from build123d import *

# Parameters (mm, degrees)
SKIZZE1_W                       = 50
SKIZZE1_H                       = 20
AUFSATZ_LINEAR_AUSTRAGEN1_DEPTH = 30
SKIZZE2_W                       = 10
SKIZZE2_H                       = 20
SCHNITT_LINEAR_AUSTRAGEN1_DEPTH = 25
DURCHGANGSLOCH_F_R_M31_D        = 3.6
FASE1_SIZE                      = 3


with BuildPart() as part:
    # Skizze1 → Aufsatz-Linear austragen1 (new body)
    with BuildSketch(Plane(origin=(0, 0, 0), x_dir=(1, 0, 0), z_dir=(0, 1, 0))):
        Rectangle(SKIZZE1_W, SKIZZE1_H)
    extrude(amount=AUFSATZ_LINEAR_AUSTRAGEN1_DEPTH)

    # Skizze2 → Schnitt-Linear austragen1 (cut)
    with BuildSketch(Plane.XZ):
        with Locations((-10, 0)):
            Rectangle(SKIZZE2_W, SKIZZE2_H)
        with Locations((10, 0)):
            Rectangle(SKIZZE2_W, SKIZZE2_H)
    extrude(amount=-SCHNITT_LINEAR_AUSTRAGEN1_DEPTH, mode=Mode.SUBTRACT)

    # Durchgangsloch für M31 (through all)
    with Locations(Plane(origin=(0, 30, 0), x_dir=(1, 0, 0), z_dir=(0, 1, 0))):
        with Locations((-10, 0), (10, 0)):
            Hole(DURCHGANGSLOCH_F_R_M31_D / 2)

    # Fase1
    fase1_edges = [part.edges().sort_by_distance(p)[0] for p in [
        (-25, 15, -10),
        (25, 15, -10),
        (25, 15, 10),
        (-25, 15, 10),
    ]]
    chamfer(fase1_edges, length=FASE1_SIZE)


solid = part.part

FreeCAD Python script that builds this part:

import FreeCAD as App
import Part
import Sketcher


def edges_at(feature, points):
    """Names of the edges that pass closest to the given points."""
    edges = feature.Shape.Edges
    near = lambda p: min(range(len(edges)), key=lambda i: edges[i].distToShape(Part.Vertex(*p))[0])
    return sorted({f"Edge{near(p) + 1}" for p in points})


def add_polygon(sketch, points):
    """Adds a closed chain of lines whose ends are joined by coincident constraints."""
    first, n = sketch.GeometryCount, len(points)
    for a, b in zip(points, points[1:] + points[:1]):
        sketch.addGeometry(Part.LineSegment(App.Vector(*a, 0), App.Vector(*b, 0)), False)
    for i in range(n):
        sketch.addConstraint(Sketcher.Constraint("Coincident", first + i, 2, first + (i + 1) % n, 1))

doc = App.newDocument("Part")
params = doc.addObject("Spreadsheet::Sheet", "Params")
for row, (alias, value) in enumerate([
    ("sketch1_width", "50 mm"),
    ("sketch1_height", "20 mm"),
    ("pad1_length", "30 mm"),
    ("sketch2_width", "10 mm"),
    ("sketch2_height", "20 mm"),
    ("pocket1_length", "25 mm"),
    ("sketch3_diameter", "3.6 mm"),
    ("hole_diameter", "3.6 mm"),
    ("chamfer_size", "3 mm"),
], start=1):
    params.set(f"A{row}", alias)
    params.set(f"B{row}", "=" + value)
    params.setAlias(f"B{row}", alias)

body = doc.addObject("PartDesign::Body", "Body")

# Sketch on XZ plane
sketch1 = body.newObject("Sketcher::SketchObject", "Sketch")
sketch1.AttachmentSupport = (doc.getObject("XZ_Plane"), [""])
sketch1.MapMode = "FlatFace"
add_polygon(sketch1, [(-25, -10), (-25, 10), (25, 10), (25, -10)])  # lines 0-3
sketch1.addConstraint(Sketcher.Constraint("Vertical", 0))
sketch1.addConstraint(Sketcher.Constraint("Horizontal", 1))
sketch1.addConstraint(Sketcher.Constraint("Vertical", 2))
sketch1.addConstraint(Sketcher.Constraint("Horizontal", 3))
sketch1.addConstraint(Sketcher.Constraint("Symmetric", 0, 2, 2, 2, -1, 1))
sketch1.addConstraint(Sketcher.Constraint("DistanceX", 1, 1, 1, 2, 50.0))
sketch1.addConstraint(Sketcher.Constraint("DistanceY", 0, 1, 0, 2, 20.0))
sketch1.setExpression("Constraints[9]", "Params.sketch1_width")
sketch1.setExpression("Constraints[10]", "Params.sketch1_height")
pad1 = body.newObject("PartDesign::Pad", "Pad")
pad1.Profile = sketch1
pad1.setExpression("Length", "Params.pad1_length")
pad1.Reversed = True

# Sketch on XZ plane
sketch2 = body.newObject("Sketcher::SketchObject", "Sketch001")
sketch2.AttachmentSupport = (doc.getObject("XZ_Plane"), [""])
sketch2.MapMode = "FlatFace"
add_polygon(sketch2, [(-15, 10), (-15, -10), (-5, -10), (-5, 10)])  # lines 0-3
add_polygon(sketch2, [(5, 10), (5, -10), (15, -10), (15, 10)])  # lines 4-7
sketch2.addConstraint(Sketcher.Constraint("Vertical", 0))
sketch2.addConstraint(Sketcher.Constraint("Horizontal", 1))
sketch2.addConstraint(Sketcher.Constraint("Vertical", 2))
sketch2.addConstraint(Sketcher.Constraint("Horizontal", 3))
sketch2.addConstraint(Sketcher.Constraint("Vertical", 4))
sketch2.addConstraint(Sketcher.Constraint("Horizontal", 5))
sketch2.addConstraint(Sketcher.Constraint("Vertical", 6))
sketch2.addConstraint(Sketcher.Constraint("Horizontal", 7))
sketch2.addConstraint(Sketcher.Constraint("Symmetric", 2, 2, 4, 2, -1, 1))
sketch2.addConstraint(Sketcher.Constraint("Symmetric", 0, 2, 6, 2, -1, 1))
sketch2.addConstraint(Sketcher.Constraint("Horizontal", 1, 2, 4, 2))
sketch2.addConstraint(Sketcher.Constraint("DistanceX", 1, 1, 1, 2, 10.0))
sketch2.addConstraint(Sketcher.Constraint("DistanceY", 0, 2, 0, 1, 20.0))
sketch2.addConstraint(Sketcher.Constraint("DistanceX", 0, 2, -1, 1, 15.0))
sketch2.setExpression("Constraints[19]", "Params.sketch2_width")
sketch2.setExpression("Constraints[20]", "Params.sketch2_height")
pocket1 = body.newObject("PartDesign::Pocket", "Pocket")
pocket1.Profile = sketch2
pocket1.setExpression("Length", "Params.pocket1_length")

# Sketch on XZ plane
sketch3 = body.newObject("Sketcher::SketchObject", "Sketch002")
sketch3.AttachmentSupport = (doc.getObject("XZ_Plane"), [""])
sketch3.MapMode = "FlatFace"
sketch3.AttachmentOffset = App.Placement(App.Vector(0, 0, -30), App.Rotation())
sketch3.addGeometry(Part.Circle(App.Vector(-10, 0, 0), App.Vector(0, 0, 1), 1.8), False)
sketch3.addGeometry(Part.Circle(App.Vector(10, 0, 0), App.Vector(0, 0, 1), 1.8), False)
sketch3.addConstraint(Sketcher.Constraint("Equal", 0, 1))
sketch3.addConstraint(Sketcher.Constraint("Symmetric", 0, 3, 1, 3, -1, 1))
sketch3.addConstraint(Sketcher.Constraint("PointOnObject", 0, 3, -1))
sketch3.addConstraint(Sketcher.Constraint("Diameter", 0, 3.6))
sketch3.addConstraint(Sketcher.Constraint("DistanceX", 0, 3, -1, 1, 10.0))
sketch3.setExpression("Constraints[3]", "Params.sketch3_diameter")
doc.recompute()
hole = body.newObject("PartDesign::Hole", "Hole")
hole.Profile = sketch3
hole.ThreadType = "None"
hole.setExpression("Diameter", "Params.hole_diameter")
hole.DepthType = "ThroughAll"
hole.Reversed = True
doc.recompute()

chamfer = body.newObject("PartDesign::Chamfer", "Chamfer")
chamfer.Base = (hole, edges_at(hole, [
    (-25, 15, -10),
    (25, 15, -10),
    (25, 15, 10),
    (-25, 15, 10),
]))
chamfer.setExpression("Size", "Params.chamfer_size")

doc.recompute()
